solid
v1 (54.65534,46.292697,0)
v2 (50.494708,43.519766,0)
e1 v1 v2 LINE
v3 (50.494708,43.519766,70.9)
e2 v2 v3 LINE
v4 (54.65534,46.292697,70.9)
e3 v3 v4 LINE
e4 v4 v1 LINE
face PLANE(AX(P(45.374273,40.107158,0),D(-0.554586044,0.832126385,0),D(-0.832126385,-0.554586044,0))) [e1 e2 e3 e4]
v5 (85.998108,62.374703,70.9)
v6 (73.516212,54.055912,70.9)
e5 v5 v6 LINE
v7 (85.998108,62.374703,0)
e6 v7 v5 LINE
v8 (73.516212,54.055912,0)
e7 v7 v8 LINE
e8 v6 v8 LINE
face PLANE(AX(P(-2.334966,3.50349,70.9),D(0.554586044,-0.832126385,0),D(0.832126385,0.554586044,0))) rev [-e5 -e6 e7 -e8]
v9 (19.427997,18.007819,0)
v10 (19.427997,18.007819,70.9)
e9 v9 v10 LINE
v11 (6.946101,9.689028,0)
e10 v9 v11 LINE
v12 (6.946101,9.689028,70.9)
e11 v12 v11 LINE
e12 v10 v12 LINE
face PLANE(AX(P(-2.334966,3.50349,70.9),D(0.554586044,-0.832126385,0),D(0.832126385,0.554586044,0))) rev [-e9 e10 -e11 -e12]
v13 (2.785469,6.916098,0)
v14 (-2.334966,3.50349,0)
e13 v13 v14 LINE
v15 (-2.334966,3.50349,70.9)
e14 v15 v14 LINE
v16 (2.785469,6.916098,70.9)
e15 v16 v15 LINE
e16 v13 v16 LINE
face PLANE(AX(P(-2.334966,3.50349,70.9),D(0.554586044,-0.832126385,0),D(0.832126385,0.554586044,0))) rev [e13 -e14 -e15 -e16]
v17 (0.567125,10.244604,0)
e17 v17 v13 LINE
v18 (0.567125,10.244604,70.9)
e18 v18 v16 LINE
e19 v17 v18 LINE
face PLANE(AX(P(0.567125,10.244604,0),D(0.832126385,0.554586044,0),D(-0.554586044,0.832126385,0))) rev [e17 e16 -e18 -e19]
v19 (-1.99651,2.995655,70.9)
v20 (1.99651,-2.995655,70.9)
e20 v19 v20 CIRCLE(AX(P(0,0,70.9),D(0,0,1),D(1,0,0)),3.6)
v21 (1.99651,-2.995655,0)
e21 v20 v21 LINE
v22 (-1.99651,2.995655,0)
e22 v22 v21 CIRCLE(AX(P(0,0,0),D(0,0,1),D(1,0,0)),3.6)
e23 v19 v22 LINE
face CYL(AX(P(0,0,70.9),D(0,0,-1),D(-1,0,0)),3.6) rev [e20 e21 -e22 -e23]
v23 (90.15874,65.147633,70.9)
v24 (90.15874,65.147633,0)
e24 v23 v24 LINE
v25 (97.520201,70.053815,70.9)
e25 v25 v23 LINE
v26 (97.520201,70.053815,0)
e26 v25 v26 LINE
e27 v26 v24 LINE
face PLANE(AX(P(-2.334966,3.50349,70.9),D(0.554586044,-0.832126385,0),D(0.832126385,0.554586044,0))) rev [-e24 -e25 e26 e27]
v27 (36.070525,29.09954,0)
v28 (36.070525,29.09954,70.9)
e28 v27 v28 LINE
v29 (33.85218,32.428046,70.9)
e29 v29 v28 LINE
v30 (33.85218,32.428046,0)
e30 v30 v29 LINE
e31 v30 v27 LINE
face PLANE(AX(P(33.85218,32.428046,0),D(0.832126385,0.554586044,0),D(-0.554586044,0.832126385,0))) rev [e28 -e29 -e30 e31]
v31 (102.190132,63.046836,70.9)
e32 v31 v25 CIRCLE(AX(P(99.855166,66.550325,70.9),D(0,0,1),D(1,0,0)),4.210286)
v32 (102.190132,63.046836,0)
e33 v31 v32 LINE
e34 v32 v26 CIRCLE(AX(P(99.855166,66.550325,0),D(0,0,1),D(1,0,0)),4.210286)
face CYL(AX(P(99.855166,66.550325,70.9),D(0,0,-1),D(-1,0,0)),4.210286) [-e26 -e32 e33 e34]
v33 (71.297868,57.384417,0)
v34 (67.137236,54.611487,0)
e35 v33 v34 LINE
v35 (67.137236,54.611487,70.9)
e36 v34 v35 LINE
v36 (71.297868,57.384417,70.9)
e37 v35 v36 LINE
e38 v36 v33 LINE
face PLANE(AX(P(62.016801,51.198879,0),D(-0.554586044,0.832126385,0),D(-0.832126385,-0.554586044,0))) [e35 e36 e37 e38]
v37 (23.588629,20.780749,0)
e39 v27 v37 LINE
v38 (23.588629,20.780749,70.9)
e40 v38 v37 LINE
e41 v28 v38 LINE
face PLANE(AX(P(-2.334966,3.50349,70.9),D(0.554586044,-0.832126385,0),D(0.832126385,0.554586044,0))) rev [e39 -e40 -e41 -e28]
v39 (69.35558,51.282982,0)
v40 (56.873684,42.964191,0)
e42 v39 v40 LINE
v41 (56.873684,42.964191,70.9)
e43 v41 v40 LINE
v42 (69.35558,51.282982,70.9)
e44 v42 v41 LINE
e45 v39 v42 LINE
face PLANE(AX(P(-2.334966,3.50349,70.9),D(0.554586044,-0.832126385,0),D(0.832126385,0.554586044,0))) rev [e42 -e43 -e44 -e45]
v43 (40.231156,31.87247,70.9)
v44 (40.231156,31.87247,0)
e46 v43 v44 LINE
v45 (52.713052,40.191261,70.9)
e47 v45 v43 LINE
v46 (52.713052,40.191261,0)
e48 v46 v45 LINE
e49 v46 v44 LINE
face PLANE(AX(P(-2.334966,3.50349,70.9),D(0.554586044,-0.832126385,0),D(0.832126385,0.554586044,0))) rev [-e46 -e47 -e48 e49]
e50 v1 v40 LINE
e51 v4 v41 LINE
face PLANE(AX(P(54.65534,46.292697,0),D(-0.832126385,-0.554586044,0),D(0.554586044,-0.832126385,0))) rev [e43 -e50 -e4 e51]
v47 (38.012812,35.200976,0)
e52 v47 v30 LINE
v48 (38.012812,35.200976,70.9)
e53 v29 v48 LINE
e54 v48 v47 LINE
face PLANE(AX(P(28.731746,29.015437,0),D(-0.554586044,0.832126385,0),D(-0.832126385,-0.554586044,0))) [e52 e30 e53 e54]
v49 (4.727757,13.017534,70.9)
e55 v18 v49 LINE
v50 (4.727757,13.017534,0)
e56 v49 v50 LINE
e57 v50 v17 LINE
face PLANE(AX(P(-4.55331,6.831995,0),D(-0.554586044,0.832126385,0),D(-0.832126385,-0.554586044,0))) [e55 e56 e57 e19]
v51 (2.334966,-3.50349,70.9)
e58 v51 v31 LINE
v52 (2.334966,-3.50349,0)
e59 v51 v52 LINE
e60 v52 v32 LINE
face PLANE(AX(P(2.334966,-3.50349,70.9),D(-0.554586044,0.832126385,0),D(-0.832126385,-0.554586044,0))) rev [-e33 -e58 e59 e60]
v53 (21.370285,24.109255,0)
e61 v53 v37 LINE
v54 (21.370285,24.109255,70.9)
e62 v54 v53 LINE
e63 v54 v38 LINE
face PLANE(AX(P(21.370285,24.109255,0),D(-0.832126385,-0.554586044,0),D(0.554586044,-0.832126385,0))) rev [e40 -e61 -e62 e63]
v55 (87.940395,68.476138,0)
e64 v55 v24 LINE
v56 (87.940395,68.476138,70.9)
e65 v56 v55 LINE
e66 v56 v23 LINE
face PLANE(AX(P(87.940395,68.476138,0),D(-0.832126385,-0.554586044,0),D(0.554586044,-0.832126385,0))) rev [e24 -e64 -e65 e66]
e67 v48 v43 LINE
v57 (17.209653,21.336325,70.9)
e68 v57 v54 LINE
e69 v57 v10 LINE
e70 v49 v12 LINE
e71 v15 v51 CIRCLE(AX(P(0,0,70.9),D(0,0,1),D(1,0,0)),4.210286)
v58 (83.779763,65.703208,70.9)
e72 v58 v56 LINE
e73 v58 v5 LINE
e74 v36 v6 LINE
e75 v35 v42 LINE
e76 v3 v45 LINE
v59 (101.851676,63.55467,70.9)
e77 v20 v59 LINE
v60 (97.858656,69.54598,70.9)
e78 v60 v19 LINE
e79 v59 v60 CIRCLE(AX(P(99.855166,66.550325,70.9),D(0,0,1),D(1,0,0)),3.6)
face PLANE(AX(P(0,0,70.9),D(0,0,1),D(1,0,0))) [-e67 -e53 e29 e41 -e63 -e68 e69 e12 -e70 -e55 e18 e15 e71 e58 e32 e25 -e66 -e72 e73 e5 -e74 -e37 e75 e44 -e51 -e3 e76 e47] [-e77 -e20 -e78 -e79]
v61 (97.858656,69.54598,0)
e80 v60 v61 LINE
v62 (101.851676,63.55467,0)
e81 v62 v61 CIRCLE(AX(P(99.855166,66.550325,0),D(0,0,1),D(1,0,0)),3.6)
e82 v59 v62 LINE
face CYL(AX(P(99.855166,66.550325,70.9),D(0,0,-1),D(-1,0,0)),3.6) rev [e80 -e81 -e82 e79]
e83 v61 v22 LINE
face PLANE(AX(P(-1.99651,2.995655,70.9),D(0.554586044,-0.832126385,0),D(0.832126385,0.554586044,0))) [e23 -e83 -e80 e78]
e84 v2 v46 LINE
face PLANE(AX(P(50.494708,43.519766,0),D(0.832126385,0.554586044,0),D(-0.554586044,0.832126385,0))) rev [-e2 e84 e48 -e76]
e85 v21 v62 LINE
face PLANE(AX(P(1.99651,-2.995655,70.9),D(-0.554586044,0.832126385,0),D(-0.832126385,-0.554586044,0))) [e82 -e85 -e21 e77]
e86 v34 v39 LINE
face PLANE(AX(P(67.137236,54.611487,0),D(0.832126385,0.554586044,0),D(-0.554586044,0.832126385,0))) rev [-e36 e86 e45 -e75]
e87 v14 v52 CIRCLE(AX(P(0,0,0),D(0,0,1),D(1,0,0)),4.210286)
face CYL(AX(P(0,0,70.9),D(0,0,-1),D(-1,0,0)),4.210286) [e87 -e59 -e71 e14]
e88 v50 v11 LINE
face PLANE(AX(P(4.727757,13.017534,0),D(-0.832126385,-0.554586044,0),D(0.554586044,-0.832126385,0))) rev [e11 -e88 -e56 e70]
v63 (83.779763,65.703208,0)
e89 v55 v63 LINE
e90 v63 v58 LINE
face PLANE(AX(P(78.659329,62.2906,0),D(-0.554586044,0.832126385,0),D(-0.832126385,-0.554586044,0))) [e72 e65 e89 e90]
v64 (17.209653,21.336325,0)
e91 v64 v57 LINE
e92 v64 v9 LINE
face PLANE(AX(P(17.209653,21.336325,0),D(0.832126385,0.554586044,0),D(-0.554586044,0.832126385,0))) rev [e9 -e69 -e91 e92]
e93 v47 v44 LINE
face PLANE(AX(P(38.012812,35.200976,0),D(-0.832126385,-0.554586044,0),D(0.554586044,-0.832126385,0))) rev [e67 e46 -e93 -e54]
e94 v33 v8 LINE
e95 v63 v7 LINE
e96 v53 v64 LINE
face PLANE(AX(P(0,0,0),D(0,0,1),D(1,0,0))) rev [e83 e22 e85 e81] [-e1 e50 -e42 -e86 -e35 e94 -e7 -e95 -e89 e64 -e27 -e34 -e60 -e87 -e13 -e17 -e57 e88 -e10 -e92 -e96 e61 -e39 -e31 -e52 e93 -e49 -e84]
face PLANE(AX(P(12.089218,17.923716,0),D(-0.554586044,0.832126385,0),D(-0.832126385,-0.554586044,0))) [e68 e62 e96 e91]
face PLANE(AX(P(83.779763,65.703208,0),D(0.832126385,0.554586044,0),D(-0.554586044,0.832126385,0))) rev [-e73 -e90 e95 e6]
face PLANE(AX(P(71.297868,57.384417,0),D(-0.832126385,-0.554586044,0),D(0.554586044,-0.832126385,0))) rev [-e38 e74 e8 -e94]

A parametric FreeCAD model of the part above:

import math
import FreeCAD as App
import Part
import Sketcher
from FreeCAD import Vector


def add_polygon(sketch, points):
    """Adds a closed chain of lines whose ends are joined by coincident constraints."""
    first, n = sketch.GeometryCount, len(points)
    for a, b in zip(points, points[1:] + points[:1]):
        sketch.addGeometry(Part.LineSegment(App.Vector(*a, 0), App.Vector(*b, 0)), False)
    for i in range(n):
        sketch.addConstraint(Sketcher.Constraint("Coincident", first + i, 2, first + (i + 1) % n, 1))

doc = App.newDocument("Part")
body = doc.addObject("PartDesign::Body", "Body")

sketch1 = doc.addObject("Sketcher::SketchObject", "Sketch")
body.addObject(sketch1)
sketch1.AttachmentSupport = (doc.XY_Plane, [""])
sketch1.MapMode = "FlatFace"
sketch1.addGeometry([
    Part.LineSegment(Vector(97.5, 70.1, 0), Vector(-2.3, 3.5, 0)),
    Part.ArcOfCircle(Part.Circle(Vector(0, 0, 0), Vector(0, 0, 1), 4.2), math.radians(124), math.radians(304)),
    Part.LineSegment(Vector(2.3, -3.5, 0), Vector(102.2, 63, 0)),
    Part.ArcOfCircle(Part.Circle(Vector(99.9, 66.6, 0), Vector(0, 0, 1), 4.2), math.radians(-56), math.radians(124)),
    Part.LineSegment(Vector(-2, 3, 0), Vector(97.9, 69.5, 0)),
    Part.ArcOfCircle(Part.Circle(Vector(99.9, 66.6, 0), Vector(0, 0, 1), 3.6), math.radians(-56), math.radians(124)),
    Part.LineSegment(Vector(101.9, 63.6, 0), Vector(2, -3, 0)),
    Part.ArcOfCircle(Part.Circle(Vector(0, 0, 0), Vector(0, 0, 1), 3.6), math.radians(124), math.radians(304)),
], False)
sketch1.addConstraint([
    Sketcher.Constraint("Tangent", 0, 2, 1, 1),
    Sketcher.Constraint("Tangent", 1, 2, 2, 1),
    Sketcher.Constraint("Tangent", 2, 2, 3, 1),
    Sketcher.Constraint("Tangent", 3, 2, 0, 1),
    Sketcher.Constraint("Tangent", 4, 2, 5, 2),
    Sketcher.Constraint("Tangent", 5, 1, 6, 1),
    Sketcher.Constraint("Tangent", 6, 2, 7, 2),
    Sketcher.Constraint("Tangent", 7, 1, 4, 1),
    Sketcher.Constraint("Coincident", 1, 3, -1, 1),
    Sketcher.Constraint("Coincident", 7, 3, -1, 1),
    Sketcher.Constraint("Coincident", 5, 3, 3, 3),
    Sketcher.Constraint("Equal", 1, 3),
    Sketcher.Constraint("Equal", 5, 7),
    Sketcher.Constraint("Radius", 5, 3.6),
    Sketcher.Constraint("Distance", 0, 120.0),
    Sketcher.Constraint("Radius", 1, 4.210286),
    Sketcher.Constraint("DistanceX", -1, 1, 3, 2, 97.520201),
])
pad1 = doc.addObject("PartDesign::Pad", "Pad")
body.addObject(pad1)
pad1.Profile = sketch1
pad1.Length = 70.9

sketch2 = doc.addObject("Sketcher::SketchObject", "Sketch001")
body.addObject(sketch2)
sketch2.Placement = App.Placement(Vector(-2.334966, 3.50349, 0), App.Rotation(Vector(0.832126385, 0.554586044, 0), Vector(0, 0, -1.000000001), Vector(-0.554586044, 0.832126385, 0), "ZXY"))
add_polygon(sketch2, [(6, 0), (6, -71), (11, -71), (11, 0)])
sketch2.addConstraint([
    Sketcher.Constraint("Vertical", 0),
    Sketcher.Constraint("Horizontal", 1),
    Sketcher.Constraint("Vertical", 2),
    Sketcher.Constraint("Horizontal", 3),
    Sketcher.Constraint("PointOnObject", 2, 2, -1),
    Sketcher.Constraint("DistanceX", 1, 1, 1, 2, 5.0),
    Sketcher.Constraint("DistanceY", 0, 2, 0, 1, 70.9),
    Sketcher.Constraint("DistanceX", -1, 1, 0, 2, 6.153434),
])
pad2 = doc.addObject("PartDesign::Pad", "Pad001")
body.addObject(pad2)
pad2.Profile = sketch2
pad2.Length = 4
doc.recompute()

datumline = doc.addObject("PartDesign::Line", "DatumLine")
body.addObject(datumline)
datumline.Placement = App.Placement(Vector(0, 0, 0), App.Rotation(Vector(0, 0, 1), Vector(0.832126385, 0.554586044, 0)))
linearpattern = doc.addObject("PartDesign::LinearPattern", "LinearPattern")
body.addObject(linearpattern)
linearpattern.Originals = [pad2]
linearpattern.Direction = (datumline, [""])
linearpattern.Mode = "offset"
linearpattern.Offset = 20
linearpattern.Occurrences = 6
body.Tip = linearpattern

doc.recompute()
